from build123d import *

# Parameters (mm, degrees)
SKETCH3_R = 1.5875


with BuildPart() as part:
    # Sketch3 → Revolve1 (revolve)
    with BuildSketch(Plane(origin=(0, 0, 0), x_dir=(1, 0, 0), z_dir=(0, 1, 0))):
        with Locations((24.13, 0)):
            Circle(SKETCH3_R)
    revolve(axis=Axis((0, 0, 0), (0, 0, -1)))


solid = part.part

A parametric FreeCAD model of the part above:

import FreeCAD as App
import Part
import Sketcher

V = App.Vector
Q = App.Units.Quantity

doc = App.newDocument("Part")
body = doc.addObject("PartDesign::Body", "Body")

# Sketch on XZ plane
sketch1 = body.newObject("Sketcher::SketchObject", "Sketch")
sketch1.AttachmentSupport = (doc.getObject("XZ_Plane"), [""])
sketch1.MapMode = "FlatFace"
sketch1.addGeometry(Part.Circle(V(24.1, 0, 0), V(0, 0, 1), 1.6), False)
sketch1.addConstraint([
    Sketcher.Constraint("PointOnObject", 0, 3, -1),
    Sketcher.Constraint("Diameter", 0, Q("0.125 in")),
    Sketcher.Constraint("DistanceX", -1, 1, 0, 3, Q("0.95 in")),
])
revolution = body.newObject("PartDesign::Revolution", "Revolution")
revolution.Profile = sketch1
revolution.ReferenceAxis = (sketch1, ["V_Axis"])
revolution.Angle = 360

doc.recompute()
